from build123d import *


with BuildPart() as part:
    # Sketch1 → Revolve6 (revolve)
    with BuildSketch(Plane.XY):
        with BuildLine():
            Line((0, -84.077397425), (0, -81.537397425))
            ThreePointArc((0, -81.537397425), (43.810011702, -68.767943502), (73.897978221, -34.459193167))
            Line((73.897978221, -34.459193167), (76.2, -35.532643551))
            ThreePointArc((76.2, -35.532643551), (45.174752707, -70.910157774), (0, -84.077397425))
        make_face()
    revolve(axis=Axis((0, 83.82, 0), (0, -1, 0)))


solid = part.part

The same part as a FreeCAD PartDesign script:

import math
import FreeCAD as App
import Part
import Sketcher

V = App.Vector
Q = App.Units.Quantity

doc = App.newDocument("Part")
body = doc.addObject("PartDesign::Body", "Body")

sketch1 = body.newObject("Sketcher::SketchObject", "Sketch")
sketch1.AttachmentSupport = (doc.getObject("XY_Plane"), [""])
sketch1.MapMode = "FlatFace"
sketch1.addGeometry([
    Part.LineSegment(V(0, -81.5, 0), V(0, -84.1, 0)),
    Part.ArcOfCircle(Part.Circle(V(0, 0, 0), V(0, 0, 1), 84.1), math.radians(-90), math.radians(-25)),
    Part.LineSegment(V(76.2, -35.5, 0), V(73.9, -34.5, 0)),
    Part.ArcOfCircle(Part.Circle(V(0, 0, 0), V(0, 0, 1), 81.5), math.radians(-90), math.radians(-25)),
], False)
sketch1.addConstraint([
    Sketcher.Constraint("Coincident", 0, 2, 1, 1),
    Sketcher.Constraint("Coincident", 1, 2, 2, 1),
    Sketcher.Constraint("Coincident", 2, 2, 3, 2),
    Sketcher.Constraint("Coincident", 3, 1, 0, 1),
    Sketcher.Constraint("Vertical", 0),
    Sketcher.Constraint("Coincident", 1, 3, -1, 1),
    Sketcher.Constraint("Coincident", 3, 3, -1, 1),
    Sketcher.Constraint("PointOnObject", 0, 2, -2),
    Sketcher.Constraint("DistanceY", 0, 2, 0, 1, Q("0.1 in")),
    Sketcher.Constraint("DistanceX", -1, 1, 1, 2, Q("3 in")),
    Sketcher.Constraint("Angle", 2, Q("155 deg")),
    Sketcher.Constraint("Radius", 1, Q("84.077397 mm")),
])
revolution = body.newObject("PartDesign::Revolution", "Revolution")
revolution.Profile = sketch1
revolution.ReferenceAxis = (sketch1, ["V_Axis"])
revolution.Angle = 360

doc.recompute()
